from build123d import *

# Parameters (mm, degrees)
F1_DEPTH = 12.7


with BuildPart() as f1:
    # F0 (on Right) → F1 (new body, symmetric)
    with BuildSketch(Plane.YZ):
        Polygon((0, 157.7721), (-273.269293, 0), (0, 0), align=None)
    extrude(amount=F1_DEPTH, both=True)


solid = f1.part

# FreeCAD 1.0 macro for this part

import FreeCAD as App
import Part
import Sketcher
Q = App.Units.Quantity

doc = App.newDocument("Part")
body = doc.addObject("PartDesign::Body", "Body")

# Sketch on YZ plane
sketch1 = body.newObject("Sketcher::SketchObject", "Sketch")
sketch1.AttachmentSupport = (doc.getObject("YZ_Plane"), [""])
sketch1.MapMode = "FlatFace"
sketch1.addGeometry([
    Part.LineSegment(App.Vector(0, 158, 0), App.Vector(-273, 0, 0)),
    Part.LineSegment(App.Vector(-273, 0, 0), App.Vector(0, 0, 0)),
    Part.LineSegment(App.Vector(0, 0, 0), App.Vector(0, 158, 0)),
], False)
sketch1.addConstraint([
    Sketcher.Constraint("Coincident", 0, 2, 1, 1),
    Sketcher.Constraint("Coincident", 1, 2, 2, 1),
    Sketcher.Constraint("Coincident", 2, 2, 0, 1),
    Sketcher.Constraint("Horizontal", 1),
    Sketcher.Constraint("Vertical", 2),
    Sketcher.Constraint("Coincident", 1, 2, -1, 1),
    Sketcher.Constraint("Angle", 0, Q("-150 deg")),
    Sketcher.Constraint("Distance", 0, Q("12.423 in")),
])
pad1 = body.newObject("PartDesign::Pad", "Pad")
pad1.Profile = sketch1
pad1.Length = Q("1 in")
pad1.Midplane = True

doc.recompute()
